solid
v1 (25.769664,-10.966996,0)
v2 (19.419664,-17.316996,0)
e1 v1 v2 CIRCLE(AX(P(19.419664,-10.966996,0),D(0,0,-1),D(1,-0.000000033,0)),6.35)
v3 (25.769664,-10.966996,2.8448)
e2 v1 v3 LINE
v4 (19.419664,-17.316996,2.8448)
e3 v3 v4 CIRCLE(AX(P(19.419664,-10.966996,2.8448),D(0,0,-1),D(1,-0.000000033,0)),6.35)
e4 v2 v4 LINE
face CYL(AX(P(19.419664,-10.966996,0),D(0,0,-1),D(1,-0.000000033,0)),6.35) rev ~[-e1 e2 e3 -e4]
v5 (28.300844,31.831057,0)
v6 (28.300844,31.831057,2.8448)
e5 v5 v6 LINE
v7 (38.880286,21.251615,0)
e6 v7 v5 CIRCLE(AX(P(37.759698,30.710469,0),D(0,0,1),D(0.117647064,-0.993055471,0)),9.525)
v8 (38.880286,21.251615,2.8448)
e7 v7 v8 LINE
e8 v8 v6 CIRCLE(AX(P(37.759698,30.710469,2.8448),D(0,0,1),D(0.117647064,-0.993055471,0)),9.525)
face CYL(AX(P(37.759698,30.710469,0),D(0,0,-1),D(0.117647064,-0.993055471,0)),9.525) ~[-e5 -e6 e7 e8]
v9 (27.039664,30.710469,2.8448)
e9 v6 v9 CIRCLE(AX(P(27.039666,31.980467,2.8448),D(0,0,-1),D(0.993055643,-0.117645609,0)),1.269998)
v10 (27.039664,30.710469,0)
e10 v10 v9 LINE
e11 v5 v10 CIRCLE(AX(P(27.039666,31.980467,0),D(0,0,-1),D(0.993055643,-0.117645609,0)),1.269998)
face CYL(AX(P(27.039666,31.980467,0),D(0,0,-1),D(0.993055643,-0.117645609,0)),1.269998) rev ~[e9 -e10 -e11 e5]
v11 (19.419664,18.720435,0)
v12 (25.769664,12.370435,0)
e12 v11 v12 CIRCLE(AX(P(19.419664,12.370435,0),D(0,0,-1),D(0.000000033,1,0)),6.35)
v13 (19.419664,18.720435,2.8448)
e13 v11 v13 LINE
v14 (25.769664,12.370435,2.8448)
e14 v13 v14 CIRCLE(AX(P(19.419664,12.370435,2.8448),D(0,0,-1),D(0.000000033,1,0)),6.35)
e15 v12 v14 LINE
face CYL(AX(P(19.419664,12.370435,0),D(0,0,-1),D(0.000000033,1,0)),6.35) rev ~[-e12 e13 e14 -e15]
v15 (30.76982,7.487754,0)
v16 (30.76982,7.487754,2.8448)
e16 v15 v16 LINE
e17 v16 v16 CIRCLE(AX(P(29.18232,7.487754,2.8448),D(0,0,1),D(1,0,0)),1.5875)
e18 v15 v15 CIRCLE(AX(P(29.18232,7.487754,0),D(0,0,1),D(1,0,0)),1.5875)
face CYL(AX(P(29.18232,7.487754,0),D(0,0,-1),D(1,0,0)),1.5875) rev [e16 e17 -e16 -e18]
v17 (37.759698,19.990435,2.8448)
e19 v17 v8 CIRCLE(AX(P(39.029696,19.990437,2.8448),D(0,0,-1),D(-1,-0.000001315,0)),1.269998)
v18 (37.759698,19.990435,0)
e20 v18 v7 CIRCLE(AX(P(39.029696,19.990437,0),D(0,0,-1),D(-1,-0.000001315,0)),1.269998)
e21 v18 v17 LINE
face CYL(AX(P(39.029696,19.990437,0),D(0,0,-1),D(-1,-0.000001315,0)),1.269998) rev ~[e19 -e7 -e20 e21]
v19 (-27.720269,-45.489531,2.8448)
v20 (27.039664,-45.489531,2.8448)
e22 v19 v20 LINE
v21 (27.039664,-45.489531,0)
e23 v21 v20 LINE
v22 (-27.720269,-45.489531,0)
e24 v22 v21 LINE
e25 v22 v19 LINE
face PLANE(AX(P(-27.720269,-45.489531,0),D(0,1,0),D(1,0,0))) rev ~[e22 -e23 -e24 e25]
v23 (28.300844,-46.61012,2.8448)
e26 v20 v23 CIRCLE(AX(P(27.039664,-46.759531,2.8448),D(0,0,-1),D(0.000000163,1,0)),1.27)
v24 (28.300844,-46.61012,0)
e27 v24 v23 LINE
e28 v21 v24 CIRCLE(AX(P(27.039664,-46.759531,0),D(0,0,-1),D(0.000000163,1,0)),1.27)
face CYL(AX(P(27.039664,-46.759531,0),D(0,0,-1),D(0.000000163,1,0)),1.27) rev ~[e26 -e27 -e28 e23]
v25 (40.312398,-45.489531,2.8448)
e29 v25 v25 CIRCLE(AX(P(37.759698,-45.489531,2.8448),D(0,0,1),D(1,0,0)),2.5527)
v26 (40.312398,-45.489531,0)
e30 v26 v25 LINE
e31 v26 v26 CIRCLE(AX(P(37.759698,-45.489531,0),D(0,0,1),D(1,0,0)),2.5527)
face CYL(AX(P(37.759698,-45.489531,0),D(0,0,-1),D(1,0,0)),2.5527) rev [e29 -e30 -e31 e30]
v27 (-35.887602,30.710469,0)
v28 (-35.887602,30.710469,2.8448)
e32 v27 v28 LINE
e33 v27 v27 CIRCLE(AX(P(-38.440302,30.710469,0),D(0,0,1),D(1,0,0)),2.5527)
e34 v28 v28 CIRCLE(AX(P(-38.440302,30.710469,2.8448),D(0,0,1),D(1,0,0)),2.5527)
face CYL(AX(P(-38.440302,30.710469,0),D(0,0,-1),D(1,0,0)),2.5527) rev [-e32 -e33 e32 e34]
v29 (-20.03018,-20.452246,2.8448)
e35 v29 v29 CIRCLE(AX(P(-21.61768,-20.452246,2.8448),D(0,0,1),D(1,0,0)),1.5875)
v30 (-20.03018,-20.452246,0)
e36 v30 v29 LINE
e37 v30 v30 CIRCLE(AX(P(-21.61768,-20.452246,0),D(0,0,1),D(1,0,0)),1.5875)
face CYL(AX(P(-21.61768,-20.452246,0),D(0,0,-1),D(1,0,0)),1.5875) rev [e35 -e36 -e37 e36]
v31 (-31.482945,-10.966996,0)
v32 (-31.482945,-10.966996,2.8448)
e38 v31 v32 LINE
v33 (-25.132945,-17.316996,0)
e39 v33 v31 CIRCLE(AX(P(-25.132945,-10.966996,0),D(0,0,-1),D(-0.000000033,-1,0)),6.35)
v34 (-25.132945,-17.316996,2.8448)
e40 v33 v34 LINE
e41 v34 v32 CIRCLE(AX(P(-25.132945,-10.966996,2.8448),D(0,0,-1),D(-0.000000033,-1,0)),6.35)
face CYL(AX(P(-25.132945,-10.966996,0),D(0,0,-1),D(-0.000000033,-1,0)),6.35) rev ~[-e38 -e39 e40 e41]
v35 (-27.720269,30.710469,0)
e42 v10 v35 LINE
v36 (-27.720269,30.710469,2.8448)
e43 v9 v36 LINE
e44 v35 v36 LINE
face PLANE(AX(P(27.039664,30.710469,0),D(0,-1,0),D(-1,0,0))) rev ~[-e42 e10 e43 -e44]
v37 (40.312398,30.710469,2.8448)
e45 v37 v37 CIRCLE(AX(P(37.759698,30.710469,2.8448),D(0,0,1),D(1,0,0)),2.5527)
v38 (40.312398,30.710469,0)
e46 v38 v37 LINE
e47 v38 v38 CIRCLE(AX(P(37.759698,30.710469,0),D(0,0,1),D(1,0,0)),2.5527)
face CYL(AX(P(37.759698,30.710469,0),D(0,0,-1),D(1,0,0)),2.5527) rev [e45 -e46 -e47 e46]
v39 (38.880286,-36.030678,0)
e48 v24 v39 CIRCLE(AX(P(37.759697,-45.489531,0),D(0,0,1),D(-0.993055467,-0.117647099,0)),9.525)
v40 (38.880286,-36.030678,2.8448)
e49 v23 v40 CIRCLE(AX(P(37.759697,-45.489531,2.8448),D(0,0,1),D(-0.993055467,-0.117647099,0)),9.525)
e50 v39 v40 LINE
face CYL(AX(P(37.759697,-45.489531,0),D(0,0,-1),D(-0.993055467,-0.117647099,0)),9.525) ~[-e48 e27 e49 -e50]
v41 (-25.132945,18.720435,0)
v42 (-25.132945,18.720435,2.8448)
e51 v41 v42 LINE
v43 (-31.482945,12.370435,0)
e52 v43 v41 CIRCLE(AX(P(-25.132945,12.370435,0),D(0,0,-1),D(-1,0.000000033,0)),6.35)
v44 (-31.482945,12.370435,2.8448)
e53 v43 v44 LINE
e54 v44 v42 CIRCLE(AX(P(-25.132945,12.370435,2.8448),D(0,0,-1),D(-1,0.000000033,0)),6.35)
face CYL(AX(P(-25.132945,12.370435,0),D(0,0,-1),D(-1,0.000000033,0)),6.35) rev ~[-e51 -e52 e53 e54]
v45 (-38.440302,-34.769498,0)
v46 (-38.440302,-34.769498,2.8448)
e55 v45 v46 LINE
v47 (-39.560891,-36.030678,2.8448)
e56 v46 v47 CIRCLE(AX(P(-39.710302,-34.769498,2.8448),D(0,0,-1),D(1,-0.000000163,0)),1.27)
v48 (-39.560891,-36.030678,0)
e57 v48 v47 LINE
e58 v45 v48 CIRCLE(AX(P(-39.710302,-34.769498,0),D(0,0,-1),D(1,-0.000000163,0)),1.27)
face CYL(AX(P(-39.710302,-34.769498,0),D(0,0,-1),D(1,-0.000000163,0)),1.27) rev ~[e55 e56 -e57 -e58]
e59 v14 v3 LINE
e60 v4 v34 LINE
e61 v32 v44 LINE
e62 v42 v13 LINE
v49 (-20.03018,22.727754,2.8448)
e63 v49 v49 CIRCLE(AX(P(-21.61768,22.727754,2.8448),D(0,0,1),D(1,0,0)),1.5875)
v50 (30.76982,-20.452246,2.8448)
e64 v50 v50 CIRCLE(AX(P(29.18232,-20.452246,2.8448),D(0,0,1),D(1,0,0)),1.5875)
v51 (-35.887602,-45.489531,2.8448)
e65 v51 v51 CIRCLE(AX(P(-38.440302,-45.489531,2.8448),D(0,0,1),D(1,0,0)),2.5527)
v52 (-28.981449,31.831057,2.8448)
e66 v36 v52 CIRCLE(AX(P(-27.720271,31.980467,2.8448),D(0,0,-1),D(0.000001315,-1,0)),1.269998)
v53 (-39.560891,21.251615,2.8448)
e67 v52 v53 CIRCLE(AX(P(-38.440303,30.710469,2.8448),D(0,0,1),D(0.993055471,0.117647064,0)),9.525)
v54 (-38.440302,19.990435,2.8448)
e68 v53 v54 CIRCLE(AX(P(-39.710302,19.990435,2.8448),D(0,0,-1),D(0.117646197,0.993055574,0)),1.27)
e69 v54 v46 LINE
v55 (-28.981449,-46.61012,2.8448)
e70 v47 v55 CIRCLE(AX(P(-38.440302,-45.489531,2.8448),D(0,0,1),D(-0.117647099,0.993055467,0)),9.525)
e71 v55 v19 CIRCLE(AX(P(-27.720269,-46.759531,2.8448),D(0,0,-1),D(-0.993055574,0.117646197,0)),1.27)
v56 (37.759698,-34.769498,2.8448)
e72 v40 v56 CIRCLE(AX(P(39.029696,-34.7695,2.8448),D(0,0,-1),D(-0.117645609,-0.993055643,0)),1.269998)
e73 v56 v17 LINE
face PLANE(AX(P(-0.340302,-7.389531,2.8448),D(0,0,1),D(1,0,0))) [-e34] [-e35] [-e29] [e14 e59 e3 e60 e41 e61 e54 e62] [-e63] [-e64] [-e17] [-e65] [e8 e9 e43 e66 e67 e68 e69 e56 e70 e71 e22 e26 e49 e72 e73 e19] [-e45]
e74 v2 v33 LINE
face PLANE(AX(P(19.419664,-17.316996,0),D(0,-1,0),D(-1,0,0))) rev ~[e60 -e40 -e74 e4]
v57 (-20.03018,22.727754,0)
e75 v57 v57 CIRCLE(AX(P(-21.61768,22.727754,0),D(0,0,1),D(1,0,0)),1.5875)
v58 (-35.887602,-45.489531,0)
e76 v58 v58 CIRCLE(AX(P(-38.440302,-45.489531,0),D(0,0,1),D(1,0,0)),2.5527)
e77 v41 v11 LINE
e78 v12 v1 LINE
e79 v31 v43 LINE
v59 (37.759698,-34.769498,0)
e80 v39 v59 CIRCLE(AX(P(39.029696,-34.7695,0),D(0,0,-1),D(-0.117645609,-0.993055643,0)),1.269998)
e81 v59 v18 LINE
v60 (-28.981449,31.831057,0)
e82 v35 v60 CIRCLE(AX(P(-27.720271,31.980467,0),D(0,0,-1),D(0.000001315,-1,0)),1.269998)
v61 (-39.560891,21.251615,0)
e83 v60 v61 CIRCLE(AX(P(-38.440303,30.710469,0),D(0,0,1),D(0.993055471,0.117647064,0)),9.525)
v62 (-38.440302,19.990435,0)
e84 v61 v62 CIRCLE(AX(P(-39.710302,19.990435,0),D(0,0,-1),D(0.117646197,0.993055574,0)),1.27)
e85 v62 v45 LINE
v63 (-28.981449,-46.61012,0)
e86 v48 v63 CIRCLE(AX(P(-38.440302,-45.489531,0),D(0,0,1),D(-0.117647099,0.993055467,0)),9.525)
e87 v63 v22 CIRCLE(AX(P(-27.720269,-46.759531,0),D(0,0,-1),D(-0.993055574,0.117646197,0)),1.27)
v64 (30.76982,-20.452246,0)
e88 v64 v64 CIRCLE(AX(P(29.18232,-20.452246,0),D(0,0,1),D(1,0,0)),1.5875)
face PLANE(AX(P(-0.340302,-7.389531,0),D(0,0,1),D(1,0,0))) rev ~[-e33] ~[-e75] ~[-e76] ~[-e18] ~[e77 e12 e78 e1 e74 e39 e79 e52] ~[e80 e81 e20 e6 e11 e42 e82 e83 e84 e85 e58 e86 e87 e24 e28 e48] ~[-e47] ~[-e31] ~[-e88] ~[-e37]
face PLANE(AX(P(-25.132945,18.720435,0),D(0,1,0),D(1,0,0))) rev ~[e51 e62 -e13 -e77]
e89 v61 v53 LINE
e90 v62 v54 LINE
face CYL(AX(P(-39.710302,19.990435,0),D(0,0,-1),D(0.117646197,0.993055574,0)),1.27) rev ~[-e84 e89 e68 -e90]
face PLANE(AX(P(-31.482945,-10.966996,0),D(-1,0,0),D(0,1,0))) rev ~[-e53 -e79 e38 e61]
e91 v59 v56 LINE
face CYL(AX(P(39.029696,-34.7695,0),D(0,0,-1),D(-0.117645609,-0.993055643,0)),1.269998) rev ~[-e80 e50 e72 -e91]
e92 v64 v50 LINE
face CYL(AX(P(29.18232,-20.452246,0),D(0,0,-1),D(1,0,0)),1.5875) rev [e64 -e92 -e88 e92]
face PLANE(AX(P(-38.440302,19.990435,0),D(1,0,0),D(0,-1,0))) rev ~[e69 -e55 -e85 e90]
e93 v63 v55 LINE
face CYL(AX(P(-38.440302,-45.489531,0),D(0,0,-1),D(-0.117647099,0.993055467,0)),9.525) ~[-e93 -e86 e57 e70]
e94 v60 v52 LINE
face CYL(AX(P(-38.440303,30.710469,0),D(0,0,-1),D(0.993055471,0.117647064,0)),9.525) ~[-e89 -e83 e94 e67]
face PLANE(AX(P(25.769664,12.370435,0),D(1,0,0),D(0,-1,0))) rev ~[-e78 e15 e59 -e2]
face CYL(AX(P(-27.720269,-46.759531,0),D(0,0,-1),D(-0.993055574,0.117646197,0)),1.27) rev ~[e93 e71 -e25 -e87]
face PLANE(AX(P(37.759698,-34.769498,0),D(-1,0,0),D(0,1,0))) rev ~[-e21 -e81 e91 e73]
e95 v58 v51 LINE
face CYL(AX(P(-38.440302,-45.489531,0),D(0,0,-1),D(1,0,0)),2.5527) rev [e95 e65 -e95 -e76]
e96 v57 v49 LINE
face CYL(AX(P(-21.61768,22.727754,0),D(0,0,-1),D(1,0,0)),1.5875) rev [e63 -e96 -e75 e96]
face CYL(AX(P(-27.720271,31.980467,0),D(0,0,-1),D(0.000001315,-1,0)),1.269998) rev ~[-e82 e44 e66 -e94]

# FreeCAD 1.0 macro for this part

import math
import FreeCAD as App
import Part
import Sketcher
Q = App.Units.Quantity

doc = App.newDocument("Part")
body = doc.addObject("PartDesign::Body", "Body")

# Sketch on XY plane
sketch1 = body.newObject("Sketcher::SketchObject", "Sketch")
sketch1.AttachmentSupport = (doc.getObject("XY_Plane"), [""])
sketch1.MapMode = "FlatFace"
sketch1.addGeometry([
    Part.LineSegment(App.Vector(27, 30.7, 0), App.Vector(-27.7, 30.7, 0)),  # 0
    Part.ArcOfCircle(Part.Circle(App.Vector(-27.7, 32, 0), App.Vector(0, 0, 1), 1.3), math.radians(-173), math.radians(-90)),  # 1
    Part.ArcOfCircle(Part.Circle(App.Vector(-38.4, 30.7, 0), App.Vector(0, 0, 1), 9.5), math.radians(7), math.radians(263)),  # 2
    Part.ArcOfCircle(Part.Circle(App.Vector(-39.7, 20, 0), App.Vector(0, 0, 1), 1.3), math.radians(0), math.radians(83)),  # 3
    Part.LineSegment(App.Vector(-38.4, 20, 0), App.Vector(-38.4, -34.8, 0)),  # 4
    Part.ArcOfCircle(Part.Circle(App.Vector(-39.7, -34.8, 0), App.Vector(0, 0, 1), 1.3), math.radians(-83), math.radians(0)),  # 5
    Part.ArcOfCircle(Part.Circle(App.Vector(-38.4, -45.5, 0), App.Vector(0, 0, 1), 9.5), math.radians(97), math.radians(353)),  # 6
    Part.ArcOfCircle(Part.Circle(App.Vector(-27.7, -46.8, 0), App.Vector(0, 0, 1), 1.3), math.radians(90), math.radians(173)),  # 7
    Part.LineSegment(App.Vector(-27.7, -45.5, 0), App.Vector(27, -45.5, 0)),  # 8
    Part.ArcOfCircle(Part.Circle(App.Vector(27, -46.8, 0), App.Vector(0, 0, 1), 1.3), math.radians(7), math.radians(90)),  # 9
    Part.ArcOfCircle(Part.Circle(App.Vector(37.8, -45.5, 0), App.Vector(0, 0, 1), 9.5), math.radians(-173), math.radians(83)),  # 10
    Part.ArcOfCircle(Part.Circle(App.Vector(39, -34.8, 0), App.Vector(0, 0, 1), 1.3), math.radians(180), math.radians(263)),  # 11
    Part.LineSegment(App.Vector(37.8, -34.8, 0), App.Vector(37.8, 20, 0)),  # 12
    Part.ArcOfCircle(Part.Circle(App.Vector(39, 20, 0), App.Vector(0, 0, 1), 1.3), math.radians(97), math.radians(180)),  # 13
    Part.ArcOfCircle(Part.Circle(App.Vector(37.8, 30.7, 0), App.Vector(0, 0, 1), 9.5), math.radians(-83), math.radians(173)),  # 14
    Part.ArcOfCircle(Part.Circle(App.Vector(27, 32, 0), App.Vector(0, 0, 1), 1.3), math.radians(-90), math.radians(-7)),  # 15
    Part.Circle(App.Vector(-38.4, -45.5, 0), App.Vector(0, 0, 1), 2.6),  # 16
    Part.Circle(App.Vector(-21.6, -20.5, 0), App.Vector(0, 0, 1), 1.6),  # 17
    Part.Circle(App.Vector(37.8, -45.5, 0), App.Vector(0, 0, 1), 2.6),  # 18
    Part.Circle(App.Vector(29.2, -20.5, 0), App.Vector(0, 0, 1), 1.6),  # 19
    Part.LineSegment(App.Vector(-31.5, -11, 0), App.Vector(-31.5, 12.4, 0)),  # 20
    Part.ArcOfCircle(Part.Circle(App.Vector(-25.1, 12.4, 0), App.Vector(0, 0, 1), 6.4), math.radians(90), math.radians(180)),  # 21
    Part.LineSegment(App.Vector(-25.1, 18.7, 0), App.Vector(19.4, 18.7, 0)),  # 22
    Part.ArcOfCircle(Part.Circle(App.Vector(19.4, 12.4, 0), App.Vector(0, 0, 1), 6.4), math.radians(0), math.radians(90)),  # 23
    Part.LineSegment(App.Vector(25.8, 12.4, 0), App.Vector(25.8, -11, 0)),  # 24
    Part.ArcOfCircle(Part.Circle(App.Vector(19.4, -11, 0), App.Vector(0, 0, 1), 6.4), math.radians(-90), math.radians(0)),  # 25
    Part.LineSegment(App.Vector(19.4, -17.3, 0), App.Vector(-25.1, -17.3, 0)),  # 26
    Part.ArcOfCircle(Part.Circle(App.Vector(-25.1, -11, 0), App.Vector(0, 0, 1), 6.4), math.radians(-180), math.radians(-90)),  # 27
    Part.Circle(App.Vector(-21.6, 22.7, 0), App.Vector(0, 0, 1), 1.6),  # 28
    Part.Circle(App.Vector(-38.4, 30.7, 0), App.Vector(0, 0, 1), 2.6),  # 29
    Part.Circle(App.Vector(29.2, 7.5, 0), App.Vector(0, 0, 1), 1.6),  # 30
    Part.Circle(App.Vector(37.8, 30.7, 0), App.Vector(0, 0, 1), 2.6),  # 31
], False)
sketch1.addConstraint([
    Sketcher.Constraint("Tangent", 0, 2, 1, 2),
    Sketcher.Constraint("Tangent", 1, 1, 2, 1),
    Sketcher.Constraint("Tangent", 2, 2, 3, 2),
    Sketcher.Constraint("Tangent", 3, 1, 4, 1),
    Sketcher.Constraint("Tangent", 4, 2, 5, 2),
    Sketcher.Constraint("Tangent", 5, 1, 6, 1),
    Sketcher.Constraint("Tangent", 6, 2, 7, 2),
    Sketcher.Constraint("Tangent", 7, 1, 8, 1),
    Sketcher.Constraint("Tangent", 8, 2, 9, 2),
    Sketcher.Constraint("Tangent", 9, 1, 10, 1),
    Sketcher.Constraint("Tangent", 10, 2, 11, 2),
    Sketcher.Constraint("Tangent", 11, 1, 12, 1),
    Sketcher.Constraint("Tangent", 12, 2, 13, 2),
    Sketcher.Constraint("Tangent", 13, 1, 14, 1),
    Sketcher.Constraint("Tangent", 14, 2, 15, 2),
    Sketcher.Constraint("Tangent", 15, 1, 0, 1),
    Sketcher.Constraint("Tangent", 20, 2, 21, 2),
    Sketcher.Constraint("Tangent", 21, 1, 22, 1),
    Sketcher.Constraint("Tangent", 22, 2, 23, 2),
    Sketcher.Constraint("Tangent", 23, 1, 24, 1),
    Sketcher.Constraint("Tangent", 24, 2, 25, 2),
    Sketcher.Constraint("Tangent", 25, 1, 26, 1),
    Sketcher.Constraint("Tangent", 26, 2, 27, 2),
    Sketcher.Constraint("Tangent", 27, 1, 20, 1),
    Sketcher.Constraint("Horizontal", 0),
    Sketcher.Constraint("Vertical", 4),
    Sketcher.Constraint("Horizontal", 8),
    Sketcher.Constraint("Vertical", 12),
    Sketcher.Constraint("Vertical", 20),
    Sketcher.Constraint("Horizontal", 22),
    Sketcher.Constraint("Vertical", 24),
    Sketcher.Constraint("Horizontal", 26),
    Sketcher.Constraint("Coincident", 16, 3, 6, 3),
    Sketcher.Constraint("Coincident", 18, 3, 10, 3),
    Sketcher.Constraint("Coincident", 29, 3, 2, 3),
    Sketcher.Constraint("Coincident", 31, 3, 14, 3),
    Sketcher.Constraint("Equal", 1, 3),
    Sketcher.Constraint("Equal", 3, 5),
    Sketcher.Constraint("Equal", 2, 6),
    Sketcher.Constraint("Equal", 5, 7),
    Sketcher.Constraint("Equal", 7, 9),
    Sketcher.Constraint("Equal", 6, 10),
    Sketcher.Constraint("Equal", 9, 11),
    Sketcher.Constraint("Equal", 11, 13),
    Sketcher.Constraint("Equal", 10, 14),
    Sketcher.Constraint("Equal", 13, 15),
    Sketcher.Constraint("Equal", 16, 18),
    Sketcher.Constraint("Equal", 17, 19),
    Sketcher.Constraint("Equal", 21, 23),
    Sketcher.Constraint("Equal", 23, 25),
    Sketcher.Constraint("Equal", 25, 27),
    Sketcher.Constraint("Equal", 19, 28),
    Sketcher.Constraint("Equal", 18, 29),
    Sketcher.Constraint("Equal", 28, 30),
    Sketcher.Constraint("Equal", 29, 31),
    Sketcher.Constraint("Horizontal", 6, 3, 10, 3),
    Sketcher.Constraint("Horizontal", 5, 3, 11, 3),
    Sketcher.Constraint("Horizontal", 3, 3, 13, 3),
    Sketcher.Constraint("Horizontal", 2, 3, 14, 3),
    Sketcher.Constraint("Horizontal", 17, 3, 19, 3),
    Sketcher.Constraint("Horizontal", 31, 3, 0, 2),
    Sketcher.Constraint("Horizontal", 18, 3, 7, 1),
    Sketcher.Constraint("Vertical", 2, 3, 6, 3),
    Sketcher.Constraint("Vertical", 17, 3, 28, 3),
    Sketcher.Constraint("Vertical", 19, 3, 30, 3),
    Sketcher.Constraint("Vertical", 29, 3, 3, 1),
    Sketcher.Constraint("Equal", 8, 4),
    Sketcher.Constraint("Radius", 1, Q("0.0499999 in")),
    Sketcher.Constraint("Radius", 21, Q("0.25 in")),
    Sketcher.Constraint("Diameter", 16, Q("0.201 in")),
    Sketcher.Constraint("Diameter", 17, Q("0.125 in")),
    Sketcher.Constraint("Radius", 2, Q("0.375 in")),
    Sketcher.Constraint("DistanceY", 6, 3, 2, 3, Q("3 in")),
    Sketcher.Constraint("DistanceY", 21, 3, 3, 3, Q("0.3 in")),
    Sketcher.Constraint("DistanceX", 23, 3, 15, 3, Q("0.3000001 in")),
    Sketcher.Constraint("DistanceX", 22, 1, 22, 2, Q("44.552609 mm")),
    Sketcher.Constraint("DistanceY", 20, 1, 20, 2, Q("23.337431 mm")),
    Sketcher.Constraint("DistanceX", 3, 3, -1, 1, Q("39.710302 mm")),
    Sketcher.Constraint("DistanceY", 11, 3, -1, 1, Q("34.7695 mm")),
    Sketcher.Constraint("DistanceX", 17, 3, -1, 1, Q("21.61768 mm")),
    Sketcher.Constraint("DistanceX", -1, 1, 19, 3, Q("29.18232 mm")),
    Sketcher.Constraint("DistanceY", 5, 3, 17, 3, Q("14.317252 mm")),
    Sketcher.Constraint("DistanceY", 21, 3, 28, 3, Q("10.357319 mm")),
    Sketcher.Constraint("DistanceY", 30, 3, 23, 3, Q("4.882681 mm")),
])
pad1 = body.newObject("PartDesign::Pad", "Pad")
pad1.Profile = sketch1
pad1.Length = Q("0.112 in")

doc.recompute()
